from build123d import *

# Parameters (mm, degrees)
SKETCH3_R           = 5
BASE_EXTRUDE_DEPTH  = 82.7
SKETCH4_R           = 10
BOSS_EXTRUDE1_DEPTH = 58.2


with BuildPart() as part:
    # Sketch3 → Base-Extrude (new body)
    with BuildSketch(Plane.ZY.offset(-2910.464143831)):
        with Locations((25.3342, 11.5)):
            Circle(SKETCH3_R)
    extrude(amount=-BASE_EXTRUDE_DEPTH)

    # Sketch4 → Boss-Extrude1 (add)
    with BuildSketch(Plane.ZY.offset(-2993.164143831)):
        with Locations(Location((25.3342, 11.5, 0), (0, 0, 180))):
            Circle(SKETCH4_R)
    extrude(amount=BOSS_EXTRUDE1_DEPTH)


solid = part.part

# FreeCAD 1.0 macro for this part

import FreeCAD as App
import Part
import Sketcher
Q = App.Units.Quantity

doc = App.newDocument("Part")
params = doc.addObject("Spreadsheet::Sheet", "Params")
for row, (alias, value) in enumerate([
    ("sketch1_diameter", "10 mm"),
    ("pad1_length", "82.7 mm"),
    ("sketch2_diameter", "20 mm"),
    ("pad2_length", "58.2 mm"),
], start=1):
    params.set(f"A{row}", alias)
    params.set(f"B{row}", "=" + value)
    params.setAlias(f"B{row}", alias)

body = doc.addObject("PartDesign::Body", "Body")

# Sketch on YZ plane
sketch1 = body.newObject("Sketcher::SketchObject", "Sketch")
sketch1.AttachmentSupport = (doc.getObject("YZ_Plane"), [""])
sketch1.MapMode = "FlatFace"
sketch1.AttachmentOffset = App.Placement(App.Vector(0, 0, 2910.464144), App.Rotation())
sketch1.addGeometry(Part.Circle(App.Vector(12, 25, 0), App.Vector(0, 0, 1), 5), False)
sketch1.addConstraint([
    Sketcher.Constraint("Diameter", 0, Q("10 mm")),
    Sketcher.Constraint("DistanceX", -1, 1, 0, 3, Q("11.5 mm")),
    Sketcher.Constraint("DistanceY", -1, 1, 0, 3, Q("25.3342 mm")),
])
sketch1.setExpression("Constraints[0]", "Params.sketch1_diameter")
pad1 = body.newObject("PartDesign::Pad", "Pad")
pad1.Profile = sketch1
pad1.setExpression("Length", "Params.pad1_length")

# Sketch on YZ plane
sketch2 = body.newObject("Sketcher::SketchObject", "Sketch001")
sketch2.AttachmentSupport = (doc.getObject("YZ_Plane"), [""])
sketch2.MapMode = "FlatFace"
sketch2.AttachmentOffset = App.Placement(App.Vector(0, 0, 2993.164144), App.Rotation())
sketch2.addGeometry(Part.Circle(App.Vector(12, 25, 0), App.Vector(0, 0, 1), 10), False)
sketch2.addConstraint([
    Sketcher.Constraint("Diameter", 0, Q("20 mm")),
    Sketcher.Constraint("DistanceX", -1, 1, 0, 3, Q("11.5 mm")),
    Sketcher.Constraint("DistanceY", -1, 1, 0, 3, Q("25.3342 mm")),
])
sketch2.setExpression("Constraints[0]", "Params.sketch2_diameter")
pad2 = body.newObject("PartDesign::Pad", "Pad001")
pad2.Profile = sketch2
pad2.setExpression("Length", "Params.pad2_length")
pad2.Reversed = True

doc.recompute()
